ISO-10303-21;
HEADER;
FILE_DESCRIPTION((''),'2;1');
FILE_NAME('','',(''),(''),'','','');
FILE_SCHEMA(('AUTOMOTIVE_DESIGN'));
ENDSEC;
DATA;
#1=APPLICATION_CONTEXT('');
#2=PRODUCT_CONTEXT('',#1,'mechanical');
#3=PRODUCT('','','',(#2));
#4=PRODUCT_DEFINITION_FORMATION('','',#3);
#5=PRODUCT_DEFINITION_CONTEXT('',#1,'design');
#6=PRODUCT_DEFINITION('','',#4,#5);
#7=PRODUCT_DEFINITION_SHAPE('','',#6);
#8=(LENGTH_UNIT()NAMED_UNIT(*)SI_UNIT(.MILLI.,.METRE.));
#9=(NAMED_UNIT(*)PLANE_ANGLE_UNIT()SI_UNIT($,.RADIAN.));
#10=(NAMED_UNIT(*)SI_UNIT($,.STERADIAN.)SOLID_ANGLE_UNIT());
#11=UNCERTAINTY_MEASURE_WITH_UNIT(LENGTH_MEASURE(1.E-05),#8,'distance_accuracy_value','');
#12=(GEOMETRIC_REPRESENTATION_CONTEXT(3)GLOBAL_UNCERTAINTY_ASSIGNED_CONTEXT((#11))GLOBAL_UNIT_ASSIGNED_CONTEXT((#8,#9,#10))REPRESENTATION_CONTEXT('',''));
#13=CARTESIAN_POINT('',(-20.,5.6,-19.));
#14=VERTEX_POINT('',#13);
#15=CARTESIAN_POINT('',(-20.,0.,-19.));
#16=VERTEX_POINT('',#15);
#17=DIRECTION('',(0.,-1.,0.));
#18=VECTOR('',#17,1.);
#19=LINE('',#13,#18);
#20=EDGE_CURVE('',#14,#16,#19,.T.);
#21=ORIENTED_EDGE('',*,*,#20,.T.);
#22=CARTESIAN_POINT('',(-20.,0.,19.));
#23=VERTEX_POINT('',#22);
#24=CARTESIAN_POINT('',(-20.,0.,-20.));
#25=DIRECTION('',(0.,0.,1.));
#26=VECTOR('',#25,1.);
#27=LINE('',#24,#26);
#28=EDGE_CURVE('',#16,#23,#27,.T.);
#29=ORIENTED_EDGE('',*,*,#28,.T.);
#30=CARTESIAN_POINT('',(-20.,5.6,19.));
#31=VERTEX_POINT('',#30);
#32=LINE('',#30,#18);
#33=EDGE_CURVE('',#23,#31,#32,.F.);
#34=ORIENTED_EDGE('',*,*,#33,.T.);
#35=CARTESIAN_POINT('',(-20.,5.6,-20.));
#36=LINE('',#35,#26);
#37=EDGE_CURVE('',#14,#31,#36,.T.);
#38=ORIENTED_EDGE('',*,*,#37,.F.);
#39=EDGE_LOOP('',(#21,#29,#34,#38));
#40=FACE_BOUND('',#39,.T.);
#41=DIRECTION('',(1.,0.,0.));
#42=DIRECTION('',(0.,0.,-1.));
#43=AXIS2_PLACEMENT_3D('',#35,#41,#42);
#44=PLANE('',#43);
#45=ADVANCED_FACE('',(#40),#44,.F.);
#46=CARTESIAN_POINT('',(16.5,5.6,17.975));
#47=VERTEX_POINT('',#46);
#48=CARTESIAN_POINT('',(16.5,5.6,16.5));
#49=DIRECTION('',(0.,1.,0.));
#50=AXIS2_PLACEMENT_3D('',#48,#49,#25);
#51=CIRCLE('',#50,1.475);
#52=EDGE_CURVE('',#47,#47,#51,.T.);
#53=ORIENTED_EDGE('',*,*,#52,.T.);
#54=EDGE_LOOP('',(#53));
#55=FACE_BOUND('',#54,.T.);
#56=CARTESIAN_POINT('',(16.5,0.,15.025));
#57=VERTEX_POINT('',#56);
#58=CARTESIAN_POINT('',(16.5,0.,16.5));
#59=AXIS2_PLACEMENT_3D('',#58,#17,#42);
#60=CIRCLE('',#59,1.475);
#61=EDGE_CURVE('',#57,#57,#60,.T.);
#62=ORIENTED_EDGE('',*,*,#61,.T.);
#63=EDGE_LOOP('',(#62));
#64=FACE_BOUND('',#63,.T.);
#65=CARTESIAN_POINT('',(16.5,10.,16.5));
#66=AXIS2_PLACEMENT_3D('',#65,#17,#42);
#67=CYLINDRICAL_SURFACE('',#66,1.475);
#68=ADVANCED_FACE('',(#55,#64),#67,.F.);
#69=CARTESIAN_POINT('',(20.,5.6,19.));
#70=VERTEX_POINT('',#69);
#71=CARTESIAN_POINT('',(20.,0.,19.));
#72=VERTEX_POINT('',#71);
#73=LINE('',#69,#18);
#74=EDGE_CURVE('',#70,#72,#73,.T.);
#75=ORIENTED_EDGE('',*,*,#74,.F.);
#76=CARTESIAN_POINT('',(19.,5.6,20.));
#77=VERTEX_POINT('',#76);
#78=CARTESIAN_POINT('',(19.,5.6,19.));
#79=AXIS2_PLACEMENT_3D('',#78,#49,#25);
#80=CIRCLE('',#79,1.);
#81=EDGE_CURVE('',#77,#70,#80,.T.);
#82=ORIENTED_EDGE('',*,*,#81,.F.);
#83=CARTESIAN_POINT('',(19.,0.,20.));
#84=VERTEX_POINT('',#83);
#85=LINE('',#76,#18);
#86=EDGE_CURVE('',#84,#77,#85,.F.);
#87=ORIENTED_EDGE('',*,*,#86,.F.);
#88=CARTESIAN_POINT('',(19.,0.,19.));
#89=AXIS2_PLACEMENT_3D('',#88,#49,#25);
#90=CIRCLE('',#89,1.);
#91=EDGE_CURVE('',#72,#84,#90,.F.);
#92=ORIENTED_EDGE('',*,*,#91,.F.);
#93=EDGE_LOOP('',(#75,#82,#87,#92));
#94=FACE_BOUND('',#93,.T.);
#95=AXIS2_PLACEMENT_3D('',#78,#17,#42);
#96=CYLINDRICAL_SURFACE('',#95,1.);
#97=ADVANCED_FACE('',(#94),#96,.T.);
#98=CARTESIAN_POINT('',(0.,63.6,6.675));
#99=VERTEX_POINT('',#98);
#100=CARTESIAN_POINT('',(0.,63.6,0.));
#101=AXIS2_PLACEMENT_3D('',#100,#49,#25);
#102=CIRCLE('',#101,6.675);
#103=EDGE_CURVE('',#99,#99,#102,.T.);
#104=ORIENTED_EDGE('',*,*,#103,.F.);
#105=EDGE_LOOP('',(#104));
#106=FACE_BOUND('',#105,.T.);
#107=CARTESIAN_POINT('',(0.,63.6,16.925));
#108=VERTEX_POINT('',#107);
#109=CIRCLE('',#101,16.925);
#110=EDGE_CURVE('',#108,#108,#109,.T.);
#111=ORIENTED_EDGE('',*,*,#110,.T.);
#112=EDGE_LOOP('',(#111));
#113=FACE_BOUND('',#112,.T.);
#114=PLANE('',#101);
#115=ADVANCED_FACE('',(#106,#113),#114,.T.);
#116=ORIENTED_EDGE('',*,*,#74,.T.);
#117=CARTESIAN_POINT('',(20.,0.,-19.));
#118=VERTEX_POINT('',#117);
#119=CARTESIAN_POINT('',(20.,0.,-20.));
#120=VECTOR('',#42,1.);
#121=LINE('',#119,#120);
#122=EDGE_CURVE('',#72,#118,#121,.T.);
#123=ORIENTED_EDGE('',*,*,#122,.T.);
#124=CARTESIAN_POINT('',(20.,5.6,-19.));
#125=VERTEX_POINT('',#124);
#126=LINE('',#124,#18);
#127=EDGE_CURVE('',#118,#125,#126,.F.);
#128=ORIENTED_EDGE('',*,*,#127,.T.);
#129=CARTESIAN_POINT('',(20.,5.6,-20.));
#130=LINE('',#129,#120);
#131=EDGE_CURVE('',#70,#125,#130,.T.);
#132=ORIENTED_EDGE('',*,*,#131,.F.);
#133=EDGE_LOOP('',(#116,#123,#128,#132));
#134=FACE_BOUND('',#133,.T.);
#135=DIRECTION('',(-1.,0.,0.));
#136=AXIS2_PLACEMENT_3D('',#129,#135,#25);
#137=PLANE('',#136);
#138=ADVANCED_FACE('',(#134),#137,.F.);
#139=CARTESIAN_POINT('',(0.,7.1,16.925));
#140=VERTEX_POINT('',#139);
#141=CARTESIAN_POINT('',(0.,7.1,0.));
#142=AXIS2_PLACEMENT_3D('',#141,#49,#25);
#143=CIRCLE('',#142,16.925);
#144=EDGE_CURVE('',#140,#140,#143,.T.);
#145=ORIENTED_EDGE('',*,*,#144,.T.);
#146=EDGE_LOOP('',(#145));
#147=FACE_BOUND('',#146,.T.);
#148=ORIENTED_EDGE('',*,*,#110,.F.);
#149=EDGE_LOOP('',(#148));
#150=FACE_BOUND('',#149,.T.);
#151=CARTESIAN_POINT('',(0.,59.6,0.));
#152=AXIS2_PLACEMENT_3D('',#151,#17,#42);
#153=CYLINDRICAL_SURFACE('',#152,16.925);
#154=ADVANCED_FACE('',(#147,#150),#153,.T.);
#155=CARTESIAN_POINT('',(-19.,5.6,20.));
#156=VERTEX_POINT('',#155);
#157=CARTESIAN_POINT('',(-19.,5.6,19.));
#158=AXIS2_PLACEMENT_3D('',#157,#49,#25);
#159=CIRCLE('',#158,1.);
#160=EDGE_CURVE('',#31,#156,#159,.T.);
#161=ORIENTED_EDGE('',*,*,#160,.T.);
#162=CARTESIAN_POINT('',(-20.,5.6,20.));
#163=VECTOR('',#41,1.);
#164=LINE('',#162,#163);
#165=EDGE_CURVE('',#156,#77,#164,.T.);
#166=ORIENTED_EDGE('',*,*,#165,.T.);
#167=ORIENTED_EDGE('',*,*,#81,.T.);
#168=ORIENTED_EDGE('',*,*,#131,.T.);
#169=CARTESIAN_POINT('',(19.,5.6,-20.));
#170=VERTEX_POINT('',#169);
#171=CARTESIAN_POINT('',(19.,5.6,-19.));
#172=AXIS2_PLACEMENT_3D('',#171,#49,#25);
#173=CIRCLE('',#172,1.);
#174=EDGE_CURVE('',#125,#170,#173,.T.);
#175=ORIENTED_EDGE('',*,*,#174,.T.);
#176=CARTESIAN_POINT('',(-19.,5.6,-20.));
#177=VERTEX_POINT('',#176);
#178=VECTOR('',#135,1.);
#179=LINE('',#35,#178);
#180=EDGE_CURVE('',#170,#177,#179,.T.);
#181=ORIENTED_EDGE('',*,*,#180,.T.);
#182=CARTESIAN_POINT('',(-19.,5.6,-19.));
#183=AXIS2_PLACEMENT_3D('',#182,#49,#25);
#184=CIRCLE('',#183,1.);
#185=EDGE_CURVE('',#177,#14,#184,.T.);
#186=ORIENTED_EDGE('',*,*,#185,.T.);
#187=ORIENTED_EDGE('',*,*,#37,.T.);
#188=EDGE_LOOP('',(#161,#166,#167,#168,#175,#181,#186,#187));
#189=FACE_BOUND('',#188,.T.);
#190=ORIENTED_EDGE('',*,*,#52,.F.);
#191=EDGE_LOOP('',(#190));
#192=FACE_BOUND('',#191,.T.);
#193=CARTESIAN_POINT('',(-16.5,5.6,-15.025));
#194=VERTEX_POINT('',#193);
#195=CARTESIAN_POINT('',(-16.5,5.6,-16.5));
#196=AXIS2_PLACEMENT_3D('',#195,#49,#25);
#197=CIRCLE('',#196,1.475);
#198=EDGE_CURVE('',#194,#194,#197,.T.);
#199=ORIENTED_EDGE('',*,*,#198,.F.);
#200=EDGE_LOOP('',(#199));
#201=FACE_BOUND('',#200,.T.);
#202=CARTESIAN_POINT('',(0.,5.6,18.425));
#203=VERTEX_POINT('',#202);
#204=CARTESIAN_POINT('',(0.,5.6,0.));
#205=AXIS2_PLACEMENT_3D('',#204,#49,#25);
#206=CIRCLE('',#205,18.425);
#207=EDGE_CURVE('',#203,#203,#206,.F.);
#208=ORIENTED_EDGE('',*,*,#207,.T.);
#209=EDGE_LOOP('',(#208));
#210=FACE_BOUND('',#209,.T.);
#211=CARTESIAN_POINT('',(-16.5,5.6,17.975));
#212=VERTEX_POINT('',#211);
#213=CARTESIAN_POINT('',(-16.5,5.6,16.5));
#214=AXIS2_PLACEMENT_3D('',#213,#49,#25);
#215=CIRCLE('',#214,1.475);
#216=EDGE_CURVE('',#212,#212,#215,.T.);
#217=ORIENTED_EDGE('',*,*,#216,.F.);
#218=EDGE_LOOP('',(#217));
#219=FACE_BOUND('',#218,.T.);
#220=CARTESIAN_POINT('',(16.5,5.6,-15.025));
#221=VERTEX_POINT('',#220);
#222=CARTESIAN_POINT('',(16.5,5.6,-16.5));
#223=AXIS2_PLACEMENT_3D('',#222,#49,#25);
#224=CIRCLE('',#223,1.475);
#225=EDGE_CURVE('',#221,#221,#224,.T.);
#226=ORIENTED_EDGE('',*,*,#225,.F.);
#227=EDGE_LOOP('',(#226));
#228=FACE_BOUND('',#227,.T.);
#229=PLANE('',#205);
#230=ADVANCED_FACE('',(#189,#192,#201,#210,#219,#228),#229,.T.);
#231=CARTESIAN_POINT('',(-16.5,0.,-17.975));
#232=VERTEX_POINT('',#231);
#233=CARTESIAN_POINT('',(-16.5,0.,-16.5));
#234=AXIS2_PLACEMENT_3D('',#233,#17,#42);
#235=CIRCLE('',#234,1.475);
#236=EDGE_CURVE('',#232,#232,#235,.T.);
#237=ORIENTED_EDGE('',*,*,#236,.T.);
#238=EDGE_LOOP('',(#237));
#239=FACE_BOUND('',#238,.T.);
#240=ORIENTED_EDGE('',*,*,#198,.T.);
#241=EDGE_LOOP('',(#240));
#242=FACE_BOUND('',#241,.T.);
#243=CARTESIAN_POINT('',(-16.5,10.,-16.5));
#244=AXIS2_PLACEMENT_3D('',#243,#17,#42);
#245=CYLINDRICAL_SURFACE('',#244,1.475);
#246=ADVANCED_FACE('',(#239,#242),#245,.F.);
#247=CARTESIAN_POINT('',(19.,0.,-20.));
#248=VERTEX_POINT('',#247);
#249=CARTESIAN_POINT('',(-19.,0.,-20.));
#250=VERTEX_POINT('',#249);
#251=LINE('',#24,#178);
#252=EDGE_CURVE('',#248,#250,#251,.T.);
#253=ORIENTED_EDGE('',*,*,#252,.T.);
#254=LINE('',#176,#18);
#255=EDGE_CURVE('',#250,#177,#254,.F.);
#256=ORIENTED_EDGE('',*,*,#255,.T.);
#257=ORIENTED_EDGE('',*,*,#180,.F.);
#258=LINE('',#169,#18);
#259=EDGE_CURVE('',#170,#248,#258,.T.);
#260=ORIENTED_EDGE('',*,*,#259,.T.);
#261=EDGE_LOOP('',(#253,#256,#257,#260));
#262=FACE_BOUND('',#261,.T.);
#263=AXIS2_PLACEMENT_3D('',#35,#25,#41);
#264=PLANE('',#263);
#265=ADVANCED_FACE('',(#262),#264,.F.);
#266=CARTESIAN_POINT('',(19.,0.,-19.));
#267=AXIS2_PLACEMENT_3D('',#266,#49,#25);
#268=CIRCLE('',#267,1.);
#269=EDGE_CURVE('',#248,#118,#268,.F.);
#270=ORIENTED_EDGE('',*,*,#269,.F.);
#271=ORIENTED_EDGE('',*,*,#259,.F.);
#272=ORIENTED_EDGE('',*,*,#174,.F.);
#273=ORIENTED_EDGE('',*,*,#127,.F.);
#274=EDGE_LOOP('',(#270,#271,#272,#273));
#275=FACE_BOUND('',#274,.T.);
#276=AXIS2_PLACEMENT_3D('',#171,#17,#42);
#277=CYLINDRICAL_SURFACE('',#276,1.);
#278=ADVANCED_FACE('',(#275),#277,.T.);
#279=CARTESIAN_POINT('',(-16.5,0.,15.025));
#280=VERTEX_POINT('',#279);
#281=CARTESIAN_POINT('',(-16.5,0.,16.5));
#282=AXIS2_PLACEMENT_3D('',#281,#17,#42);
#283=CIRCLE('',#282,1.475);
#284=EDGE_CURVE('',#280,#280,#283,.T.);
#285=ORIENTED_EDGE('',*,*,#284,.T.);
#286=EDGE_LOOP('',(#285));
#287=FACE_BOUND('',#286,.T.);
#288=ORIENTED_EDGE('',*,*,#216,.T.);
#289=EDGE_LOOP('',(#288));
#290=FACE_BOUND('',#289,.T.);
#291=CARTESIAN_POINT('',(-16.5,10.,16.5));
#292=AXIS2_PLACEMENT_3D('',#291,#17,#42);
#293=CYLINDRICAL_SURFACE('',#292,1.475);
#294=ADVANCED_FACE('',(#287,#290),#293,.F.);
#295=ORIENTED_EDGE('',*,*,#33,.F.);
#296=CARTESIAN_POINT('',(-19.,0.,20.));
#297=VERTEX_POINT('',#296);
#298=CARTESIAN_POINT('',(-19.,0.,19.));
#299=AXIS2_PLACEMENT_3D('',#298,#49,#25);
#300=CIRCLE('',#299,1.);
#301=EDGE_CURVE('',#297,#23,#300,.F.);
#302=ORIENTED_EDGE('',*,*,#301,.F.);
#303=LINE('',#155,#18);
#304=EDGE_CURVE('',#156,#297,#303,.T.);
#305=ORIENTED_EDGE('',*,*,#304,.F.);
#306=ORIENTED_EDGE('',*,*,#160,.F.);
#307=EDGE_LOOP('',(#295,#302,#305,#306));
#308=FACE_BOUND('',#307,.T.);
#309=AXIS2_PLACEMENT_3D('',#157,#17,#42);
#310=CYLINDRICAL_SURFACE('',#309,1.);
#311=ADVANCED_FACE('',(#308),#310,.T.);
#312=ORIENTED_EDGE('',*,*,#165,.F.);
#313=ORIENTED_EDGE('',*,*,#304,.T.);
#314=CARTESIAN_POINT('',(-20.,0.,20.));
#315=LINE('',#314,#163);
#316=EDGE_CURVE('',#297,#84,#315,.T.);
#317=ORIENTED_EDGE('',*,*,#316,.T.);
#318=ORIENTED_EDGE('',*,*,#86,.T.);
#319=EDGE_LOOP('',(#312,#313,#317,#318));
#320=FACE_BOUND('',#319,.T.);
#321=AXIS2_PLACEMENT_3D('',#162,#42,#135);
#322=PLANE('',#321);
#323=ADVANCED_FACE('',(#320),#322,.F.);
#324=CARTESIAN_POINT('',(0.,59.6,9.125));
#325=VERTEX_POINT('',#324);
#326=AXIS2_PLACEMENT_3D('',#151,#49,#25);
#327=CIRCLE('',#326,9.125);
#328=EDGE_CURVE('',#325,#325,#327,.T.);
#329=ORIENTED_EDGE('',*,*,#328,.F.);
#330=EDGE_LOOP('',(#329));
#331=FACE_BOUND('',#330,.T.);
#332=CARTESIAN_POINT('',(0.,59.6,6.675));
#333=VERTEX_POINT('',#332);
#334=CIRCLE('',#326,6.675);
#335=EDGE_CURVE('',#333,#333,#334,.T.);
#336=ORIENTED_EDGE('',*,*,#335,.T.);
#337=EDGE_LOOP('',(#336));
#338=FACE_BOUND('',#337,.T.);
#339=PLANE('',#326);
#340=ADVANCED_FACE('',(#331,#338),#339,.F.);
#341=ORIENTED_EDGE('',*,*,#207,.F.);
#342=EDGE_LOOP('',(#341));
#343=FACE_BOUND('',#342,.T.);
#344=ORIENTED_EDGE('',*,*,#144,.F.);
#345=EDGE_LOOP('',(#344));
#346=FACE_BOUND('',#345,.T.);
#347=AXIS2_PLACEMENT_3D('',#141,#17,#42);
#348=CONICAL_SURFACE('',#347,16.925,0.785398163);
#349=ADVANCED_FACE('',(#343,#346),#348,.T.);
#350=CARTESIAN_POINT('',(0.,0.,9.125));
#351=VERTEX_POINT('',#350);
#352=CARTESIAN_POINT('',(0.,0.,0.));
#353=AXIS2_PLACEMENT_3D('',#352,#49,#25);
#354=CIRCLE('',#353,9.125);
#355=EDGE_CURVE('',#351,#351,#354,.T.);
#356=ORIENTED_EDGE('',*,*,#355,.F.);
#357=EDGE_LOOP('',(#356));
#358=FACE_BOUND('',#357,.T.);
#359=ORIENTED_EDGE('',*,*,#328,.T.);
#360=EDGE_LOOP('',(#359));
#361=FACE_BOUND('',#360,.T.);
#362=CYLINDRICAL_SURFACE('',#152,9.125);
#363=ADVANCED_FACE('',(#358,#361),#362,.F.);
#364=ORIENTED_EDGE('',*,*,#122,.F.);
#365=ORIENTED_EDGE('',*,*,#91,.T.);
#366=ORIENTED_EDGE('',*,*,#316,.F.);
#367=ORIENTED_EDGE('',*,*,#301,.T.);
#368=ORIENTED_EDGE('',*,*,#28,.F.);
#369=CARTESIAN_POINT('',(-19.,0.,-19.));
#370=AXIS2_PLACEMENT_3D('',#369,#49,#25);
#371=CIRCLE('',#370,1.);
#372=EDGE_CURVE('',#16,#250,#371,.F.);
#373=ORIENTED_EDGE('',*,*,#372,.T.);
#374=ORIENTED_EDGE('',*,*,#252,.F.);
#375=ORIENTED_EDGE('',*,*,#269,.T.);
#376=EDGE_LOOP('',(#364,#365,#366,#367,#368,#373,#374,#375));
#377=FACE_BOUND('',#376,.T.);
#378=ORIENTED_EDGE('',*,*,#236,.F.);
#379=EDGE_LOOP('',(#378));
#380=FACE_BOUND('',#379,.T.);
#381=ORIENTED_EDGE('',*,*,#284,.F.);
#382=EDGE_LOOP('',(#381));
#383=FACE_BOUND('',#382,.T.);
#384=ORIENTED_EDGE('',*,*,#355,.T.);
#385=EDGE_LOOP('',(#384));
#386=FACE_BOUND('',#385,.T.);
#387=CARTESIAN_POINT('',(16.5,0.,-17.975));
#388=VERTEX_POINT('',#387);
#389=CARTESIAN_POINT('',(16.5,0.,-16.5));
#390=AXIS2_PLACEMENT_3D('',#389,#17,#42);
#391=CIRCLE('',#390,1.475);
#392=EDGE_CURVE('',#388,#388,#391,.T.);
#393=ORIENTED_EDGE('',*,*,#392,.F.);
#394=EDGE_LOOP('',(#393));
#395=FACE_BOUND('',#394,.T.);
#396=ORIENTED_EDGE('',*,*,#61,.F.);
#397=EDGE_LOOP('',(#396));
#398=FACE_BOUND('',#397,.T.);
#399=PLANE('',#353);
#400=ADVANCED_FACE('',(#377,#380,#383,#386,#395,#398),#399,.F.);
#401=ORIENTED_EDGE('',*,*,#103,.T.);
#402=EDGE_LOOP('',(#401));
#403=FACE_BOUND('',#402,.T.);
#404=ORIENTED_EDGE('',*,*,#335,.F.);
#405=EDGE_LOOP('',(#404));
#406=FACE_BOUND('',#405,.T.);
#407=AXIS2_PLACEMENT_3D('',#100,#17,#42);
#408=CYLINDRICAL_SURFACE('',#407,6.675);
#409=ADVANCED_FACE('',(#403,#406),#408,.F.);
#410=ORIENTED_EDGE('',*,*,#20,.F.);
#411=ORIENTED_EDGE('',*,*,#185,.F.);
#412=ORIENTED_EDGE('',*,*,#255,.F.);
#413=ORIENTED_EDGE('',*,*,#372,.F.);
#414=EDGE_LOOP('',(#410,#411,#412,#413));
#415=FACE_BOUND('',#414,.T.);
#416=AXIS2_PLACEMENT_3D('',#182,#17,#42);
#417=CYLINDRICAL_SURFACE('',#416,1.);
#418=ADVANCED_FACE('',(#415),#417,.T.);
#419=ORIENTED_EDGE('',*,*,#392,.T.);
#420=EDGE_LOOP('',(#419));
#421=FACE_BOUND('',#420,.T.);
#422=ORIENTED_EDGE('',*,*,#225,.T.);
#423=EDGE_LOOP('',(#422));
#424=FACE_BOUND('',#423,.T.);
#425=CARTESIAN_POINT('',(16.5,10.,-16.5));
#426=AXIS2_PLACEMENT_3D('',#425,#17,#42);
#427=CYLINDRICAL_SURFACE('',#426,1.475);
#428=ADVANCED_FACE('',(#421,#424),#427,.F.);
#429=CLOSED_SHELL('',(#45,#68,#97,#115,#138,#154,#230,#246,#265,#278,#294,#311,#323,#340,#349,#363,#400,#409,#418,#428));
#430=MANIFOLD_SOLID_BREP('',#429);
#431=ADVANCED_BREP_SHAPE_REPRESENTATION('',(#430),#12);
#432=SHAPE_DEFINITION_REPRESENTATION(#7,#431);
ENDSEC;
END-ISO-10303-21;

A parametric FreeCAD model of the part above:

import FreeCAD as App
import Part
import Sketcher

V = App.Vector


def edges_at(feature, points):
    """Names of the edges that pass closest to the given points."""
    edges = feature.Shape.Edges
    near = lambda p: min(range(len(edges)), key=lambda i: edges[i].distToShape(Part.Vertex(*p))[0])
    return sorted({f"Edge{near(p) + 1}" for p in points})


def add_polygon(sketch, points):
    """Adds a closed chain of lines whose ends are joined by coincident constraints."""
    first, n = sketch.GeometryCount, len(points)
    for a, b in zip(points, points[1:] + points[:1]):
        sketch.addGeometry(Part.LineSegment(App.Vector(*a, 0), App.Vector(*b, 0)), False)
    for i in range(n):
        sketch.addConstraint(Sketcher.Constraint("Coincident", first + i, 2, first + (i + 1) % n, 1))

doc = App.newDocument("Part")
params = doc.addObject("Spreadsheet::Sheet", "Params")
for row, (alias, value) in enumerate([
    ("sketch1_width", "40 mm"),
    ("pad1_length", "5.6 mm"),
    ("sketch2_diameter", "33.85 mm"),
    ("sketch2_diameter2", "18.25 mm"),
    ("pad2_length", "54 mm"),
    ("sketch3_diameter", "2.95 mm"),
    ("pocket1_length", "10 mm"),
    ("fillet_radius", "1 mm"),
    ("chamfer_size", "1.5 mm"),
    ("sketch4_diameter", "18.25 mm"),
    ("pocket2_length", "10 mm"),
    ("sketch5_diameter", "33.85 mm"),
    ("sketch5_diameter2", "13.35 mm"),
    ("pad3_length", "4 mm"),
], start=1):
    params.set(f"A{row}", alias)
    params.set(f"B{row}", "=" + value)
    params.setAlias(f"B{row}", alias)

body = doc.addObject("PartDesign::Body", "Body")

# Sketch on XZ plane
sketch1 = doc.addObject("Sketcher::SketchObject", "Sketch")
body.addObject(sketch1)
sketch1.AttachmentSupport = (doc.XZ_Plane, [""])
sketch1.MapMode = "FlatFace"
add_polygon(sketch1, [(-20, -20), (-20, 20), (20, 20), (20, -20)])  # lines 0-3
sketch1.addConstraint([
    Sketcher.Constraint("Vertical", 0),
    Sketcher.Constraint("Horizontal", 1),
    Sketcher.Constraint("Vertical", 2),
    Sketcher.Constraint("Horizontal", 3),
    Sketcher.Constraint("Symmetric", 0, 2, 2, 2, -1, 1),
    Sketcher.Constraint("Equal", 3, 0),
    Sketcher.Constraint("DistanceX", 1, 1, 1, 2, 40.0),
])
sketch1.setExpression("Constraints[10]", "Params.sketch1_width")
pad1 = doc.addObject("PartDesign::Pad", "Pad")
body.addObject(pad1)
pad1.Profile = sketch1
pad1.setExpression("Length", "Params.pad1_length")
pad1.Reversed = True

# Sketch on XZ plane
sketch2 = doc.addObject("Sketcher::SketchObject", "Sketch001")
body.addObject(sketch2)
sketch2.AttachmentSupport = (doc.XZ_Plane, [""])
sketch2.MapMode = "FlatFace"
sketch2.AttachmentOffset = App.Placement(V(0, 0, -5.6), App.Rotation())
sketch2.addGeometry([
    Part.Circle(V(0, 0, 0), V(0, 0, 1), 16.925),
    Part.Circle(V(0, 0, 0), V(0, 0, 1), 9.125),
], False)
sketch2.addConstraint([
    Sketcher.Constraint("Coincident", 0, 3, -1, 1),
    Sketcher.Constraint("Coincident", 1, 3, -1, 1),
    Sketcher.Constraint("Diameter", 0, 33.85),
    Sketcher.Constraint("Diameter", 1, 18.25),
])
sketch2.setExpression("Constraints[2]", "Params.sketch2_diameter")
sketch2.setExpression("Constraints[3]", "Params.sketch2_diameter2")
pad2 = doc.addObject("PartDesign::Pad", "Pad001")
body.addObject(pad2)
pad2.Profile = sketch2
pad2.setExpression("Length", "Params.pad2_length")
pad2.Reversed = True

# Sketch on XZ plane
sketch3 = doc.addObject("Sketcher::SketchObject", "Sketch002")
body.addObject(sketch3)
sketch3.AttachmentSupport = (doc.XZ_Plane, [""])
sketch3.MapMode = "FlatFace"
sketch3.addGeometry([
    Part.Circle(V(-16.5, -16.5, 0), V(0, 0, 1), 1.475),
    Part.Circle(V(-16.5, 16.5, 0), V(0, 0, 1), 1.475),
    Part.Circle(V(16.5, 16.5, 0), V(0, 0, 1), 1.475),
    Part.Circle(V(16.5, -16.5, 0), V(0, 0, 1), 1.475),
], False)
sketch3.addConstraint([
    Sketcher.Constraint("Equal", 0, 1),
    Sketcher.Constraint("Equal", 1, 2),
    Sketcher.Constraint("Equal", 2, 3),
    Sketcher.Constraint("Symmetric", 0, 3, 2, 3, -1, 1),
    Sketcher.Constraint("Symmetric", 1, 3, 3, 3, -1, 1),
    Sketcher.Constraint("Symmetric", 1, 3, 2, 3, -2),
    Sketcher.Constraint("Diameter", 0, 2.95),
    Sketcher.Constraint("DistanceY", 0, 3, 1, 3, 33.0),
    Sketcher.Constraint("DistanceX", 1, 3, 2, 3, 33.0),
])
sketch3.setExpression("Constraints[6]", "Params.sketch3_diameter")
pocket1 = doc.addObject("PartDesign::Pocket", "Pocket")
body.addObject(pocket1)
pocket1.Profile = sketch3
pocket1.setExpression("Length", "Params.pocket1_length")
doc.recompute()

fillet = doc.addObject("PartDesign::Fillet", "Fillet")
body.addObject(fillet)
fillet.Base = (pocket1, edges_at(pocket1, [
    (20, 2.8, 20),
    (-20, 2.8, 20),
    (-20, 2.8, -20),
    (20, 2.8, -20),
]))
fillet.setExpression("Radius", "Params.fillet_radius")
doc.recompute()

chamfer = doc.addObject("PartDesign::Chamfer", "Chamfer")
body.addObject(chamfer)
chamfer.Base = (fillet, edges_at(fillet, [(0, 5.6, -16.925)]))
chamfer.setExpression("Size", "Params.chamfer_size")

# Sketch on XZ plane
sketch4 = doc.addObject("Sketcher::SketchObject", "Sketch003")
body.addObject(sketch4)
sketch4.AttachmentSupport = (doc.XZ_Plane, [""])
sketch4.MapMode = "FlatFace"
sketch4.AttachmentOffset = App.Placement(V(0, 0, 4.4), App.Rotation())
sketch4.addGeometry(Part.Circle(V(0, 0, 0), V(0, 0, 1), 9.125), False)
sketch4.addConstraint([
    Sketcher.Constraint("Coincident", 0, 3, -1, 1),
    Sketcher.Constraint("Diameter", 0, 18.25),
])
sketch4.setExpression("Constraints[1]", "Params.sketch4_diameter")
pocket2 = doc.addObject("PartDesign::Pocket", "Pocket001")
body.addObject(pocket2)
pocket2.Profile = sketch4
pocket2.setExpression("Length", "Params.pocket2_length")

# Sketch on XZ plane
sketch5 = doc.addObject("Sketcher::SketchObject", "Sketch004")
body.addObject(sketch5)
sketch5.AttachmentSupport = (doc.XZ_Plane, [""])
sketch5.MapMode = "FlatFace"
sketch5.AttachmentOffset = App.Placement(V(0, 0, -59.6), App.Rotation())
sketch5.addGeometry([
    Part.Circle(V(0, 0, 0), V(0, 0, 1), 16.925),
    Part.Circle(V(0, 0, 0), V(0, 0, 1), 6.675),
], False)
sketch5.addConstraint([
    Sketcher.Constraint("Coincident", 0, 3, -1, 1),
    Sketcher.Constraint("Coincident", 1, 3, -1, 1),
    Sketcher.Constraint("Diameter", 0, 33.85),
    Sketcher.Constraint("Diameter", 1, 13.35),
])
sketch5.setExpression("Constraints[2]", "Params.sketch5_diameter")
sketch5.setExpression("Constraints[3]", "Params.sketch5_diameter2")
pad3 = doc.addObject("PartDesign::Pad", "Pad002")
body.addObject(pad3)
pad3.Profile = sketch5
pad3.setExpression("Length", "Params.pad3_length")
pad3.Reversed = True

doc.recompute()
